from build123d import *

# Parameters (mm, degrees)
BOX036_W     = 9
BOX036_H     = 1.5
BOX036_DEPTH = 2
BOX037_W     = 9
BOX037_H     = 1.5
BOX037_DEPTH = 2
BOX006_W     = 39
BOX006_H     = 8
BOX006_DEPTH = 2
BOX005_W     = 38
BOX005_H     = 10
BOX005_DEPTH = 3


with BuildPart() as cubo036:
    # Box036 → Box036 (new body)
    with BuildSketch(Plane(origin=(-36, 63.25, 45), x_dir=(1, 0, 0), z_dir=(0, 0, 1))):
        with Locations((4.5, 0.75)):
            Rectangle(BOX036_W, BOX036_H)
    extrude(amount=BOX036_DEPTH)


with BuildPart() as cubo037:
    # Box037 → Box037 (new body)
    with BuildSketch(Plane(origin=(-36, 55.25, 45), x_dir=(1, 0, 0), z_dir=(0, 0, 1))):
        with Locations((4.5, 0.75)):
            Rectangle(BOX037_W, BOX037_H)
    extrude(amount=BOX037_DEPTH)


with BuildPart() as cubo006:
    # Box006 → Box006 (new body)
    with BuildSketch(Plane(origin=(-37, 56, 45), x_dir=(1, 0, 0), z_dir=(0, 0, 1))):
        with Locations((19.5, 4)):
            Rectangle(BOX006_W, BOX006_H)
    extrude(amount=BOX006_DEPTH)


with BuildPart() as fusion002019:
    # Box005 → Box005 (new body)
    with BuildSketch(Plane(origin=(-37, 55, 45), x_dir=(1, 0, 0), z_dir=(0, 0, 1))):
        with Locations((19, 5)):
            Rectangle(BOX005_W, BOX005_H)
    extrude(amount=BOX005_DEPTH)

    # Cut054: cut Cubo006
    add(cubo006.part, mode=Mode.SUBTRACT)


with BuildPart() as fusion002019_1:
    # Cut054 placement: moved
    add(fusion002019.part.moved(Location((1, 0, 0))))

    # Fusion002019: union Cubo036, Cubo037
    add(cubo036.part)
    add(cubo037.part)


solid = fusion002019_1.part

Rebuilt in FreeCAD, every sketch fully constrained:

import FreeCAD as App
import Part
import Sketcher


def add_polygon(sketch, points):
    """Adds a closed chain of lines whose ends are joined by coincident constraints."""
    first, n = sketch.GeometryCount, len(points)
    for a, b in zip(points, points[1:] + points[:1]):
        sketch.addGeometry(Part.LineSegment(App.Vector(*a, 0), App.Vector(*b, 0)), False)
    for i in range(n):
        sketch.addConstraint(Sketcher.Constraint("Coincident", first + i, 2, first + (i + 1) % n, 1))

doc = App.newDocument("Part")
body = doc.addObject("PartDesign::Body", "Body")

# Sketch on XY plane
sketch1 = doc.addObject("Sketcher::SketchObject", "Sketch")
body.addObject(sketch1)
sketch1.AttachmentSupport = (doc.XY_Plane, [""])
sketch1.MapMode = "FlatFace"
sketch1.AttachmentOffset = App.Placement(App.Vector(0, 0, 45), App.Rotation())
add_polygon(sketch1, [(-36, 64.75), (-36, 63.25), (-27, 63.25), (-27, 64.75)])  # lines 0-3
sketch1.addConstraint(Sketcher.Constraint("Vertical", 0))
sketch1.addConstraint(Sketcher.Constraint("Horizontal", 1))
sketch1.addConstraint(Sketcher.Constraint("Vertical", 2))
sketch1.addConstraint(Sketcher.Constraint("Horizontal", 3))
sketch1.addConstraint(Sketcher.Constraint("DistanceX", 1, 1, 1, 2, 9.0))
sketch1.addConstraint(Sketcher.Constraint("DistanceY", 0, 2, 0, 1, 1.5))
sketch1.addConstraint(Sketcher.Constraint("DistanceX", 0, 2, -1, 1, 36.0))
sketch1.addConstraint(Sketcher.Constraint("DistanceY", -1, 1, 0, 2, 63.25))
pad1 = doc.addObject("PartDesign::Pad", "Pad")
body.addObject(pad1)
pad1.Profile = sketch1
pad1.Length = 2
body2 = doc.addObject("PartDesign::Body", "Body001")

# Sketch on XY plane
sketch2 = doc.addObject("Sketcher::SketchObject", "Sketch001")
body2.addObject(sketch2)
sketch2.AttachmentSupport = (doc.getObject("XY_Plane001"), [""])
sketch2.MapMode = "FlatFace"
sketch2.AttachmentOffset = App.Placement(App.Vector(0, 0, 45), App.Rotation())
add_polygon(sketch2, [(-36, 56.75), (-36, 55.25), (-27, 55.25), (-27, 56.75)])  # lines 0-3
sketch2.addConstraint(Sketcher.Constraint("Vertical", 0))
sketch2.addConstraint(Sketcher.Constraint("Horizontal", 1))
sketch2.addConstraint(Sketcher.Constraint("Vertical", 2))
sketch2.addConstraint(Sketcher.Constraint("Horizontal", 3))
sketch2.addConstraint(Sketcher.Constraint("DistanceX", 1, 1, 1, 2, 9.0))
sketch2.addConstraint(Sketcher.Constraint("DistanceY", 0, 2, 0, 1, 1.5))
sketch2.addConstraint(Sketcher.Constraint("DistanceX", 0, 2, -1, 1, 36.0))
sketch2.addConstraint(Sketcher.Constraint("DistanceY", -1, 1, 0, 2, 55.25))
pad2 = doc.addObject("PartDesign::Pad", "Pad001")
body2.addObject(pad2)
pad2.Profile = sketch2
pad2.Length = 2
body3 = doc.addObject("PartDesign::Body", "Body002")

# Sketch on XY plane
sketch3 = doc.addObject("Sketcher::SketchObject", "Sketch002")
body3.addObject(sketch3)
sketch3.AttachmentSupport = (doc.getObject("XY_Plane002"), [""])
sketch3.MapMode = "FlatFace"
sketch3.AttachmentOffset = App.Placement(App.Vector(0, 0, 45), App.Rotation())
add_polygon(sketch3, [(-37, 64), (-37, 56), (2, 56), (2, 64)])  # lines 0-3
sketch3.addConstraint(Sketcher.Constraint("Vertical", 0))
sketch3.addConstraint(Sketcher.Constraint("Horizontal", 1))
sketch3.addConstraint(Sketcher.Constraint("Vertical", 2))
sketch3.addConstraint(Sketcher.Constraint("Horizontal", 3))
sketch3.addConstraint(Sketcher.Constraint("DistanceX", 1, 1, 1, 2, 39.0))
sketch3.addConstraint(Sketcher.Constraint("DistanceY", 0, 2, 0, 1, 8.0))
sketch3.addConstraint(Sketcher.Constraint("DistanceX", 0, 2, -1, 1, 37.0))
sketch3.addConstraint(Sketcher.Constraint("DistanceY", -1, 1, 0, 2, 56.0))
pad3 = doc.addObject("PartDesign::Pad", "Pad002")
body3.addObject(pad3)
pad3.Profile = sketch3
pad3.Length = 2
body4 = doc.addObject("PartDesign::Body", "Body003")

# Sketch on XY plane
sketch4 = doc.addObject("Sketcher::SketchObject", "Sketch003")
body4.addObject(sketch4)
sketch4.AttachmentSupport = (doc.getObject("XY_Plane003"), [""])
sketch4.MapMode = "FlatFace"
sketch4.AttachmentOffset = App.Placement(App.Vector(0, 0, 45), App.Rotation())
add_polygon(sketch4, [(-37, 65), (-37, 55), (1, 55), (1, 65)])  # lines 0-3
sketch4.addConstraint(Sketcher.Constraint("Vertical", 0))
sketch4.addConstraint(Sketcher.Constraint("Horizontal", 1))
sketch4.addConstraint(Sketcher.Constraint("Vertical", 2))
sketch4.addConstraint(Sketcher.Constraint("Horizontal", 3))
sketch4.addConstraint(Sketcher.Constraint("DistanceX", 1, 1, 1, 2, 38.0))
sketch4.addConstraint(Sketcher.Constraint("DistanceY", 0, 2, 0, 1, 10.0))
sketch4.addConstraint(Sketcher.Constraint("DistanceX", 0, 2, -1, 1, 37.0))
sketch4.addConstraint(Sketcher.Constraint("DistanceY", -1, 1, 0, 2, 55.0))
pad4 = doc.addObject("PartDesign::Pad", "Pad003")
body4.addObject(pad4)
pad4.Profile = sketch4
pad4.Length = 3
doc.recompute()

boolean = doc.addObject("PartDesign::Boolean", "Boolean")
body4.addObject(boolean)
boolean.Type = "Cut"
boolean.addObjects([body3])
body5 = doc.addObject("PartDesign::Body", "Body004")
doc.recompute()

body4.Placement = App.Placement(App.Vector(1, 0, 0), App.Rotation(App.Vector(0, 0, 1), 0))
boolean2 = doc.addObject("PartDesign::Boolean", "Boolean001")
body5.addObject(boolean2)
boolean2.Type = "Fuse"
boolean2.addObjects([body4])
doc.recompute()

boolean3 = doc.addObject("PartDesign::Boolean", "Boolean002")
body5.addObject(boolean3)
boolean3.Type = "Fuse"
boolean3.addObjects([body])
doc.recompute()

boolean4 = doc.addObject("PartDesign::Boolean", "Boolean003")
body5.addObject(boolean4)
boolean4.Type = "Fuse"
boolean4.addObjects([body2])

doc.recompute()
